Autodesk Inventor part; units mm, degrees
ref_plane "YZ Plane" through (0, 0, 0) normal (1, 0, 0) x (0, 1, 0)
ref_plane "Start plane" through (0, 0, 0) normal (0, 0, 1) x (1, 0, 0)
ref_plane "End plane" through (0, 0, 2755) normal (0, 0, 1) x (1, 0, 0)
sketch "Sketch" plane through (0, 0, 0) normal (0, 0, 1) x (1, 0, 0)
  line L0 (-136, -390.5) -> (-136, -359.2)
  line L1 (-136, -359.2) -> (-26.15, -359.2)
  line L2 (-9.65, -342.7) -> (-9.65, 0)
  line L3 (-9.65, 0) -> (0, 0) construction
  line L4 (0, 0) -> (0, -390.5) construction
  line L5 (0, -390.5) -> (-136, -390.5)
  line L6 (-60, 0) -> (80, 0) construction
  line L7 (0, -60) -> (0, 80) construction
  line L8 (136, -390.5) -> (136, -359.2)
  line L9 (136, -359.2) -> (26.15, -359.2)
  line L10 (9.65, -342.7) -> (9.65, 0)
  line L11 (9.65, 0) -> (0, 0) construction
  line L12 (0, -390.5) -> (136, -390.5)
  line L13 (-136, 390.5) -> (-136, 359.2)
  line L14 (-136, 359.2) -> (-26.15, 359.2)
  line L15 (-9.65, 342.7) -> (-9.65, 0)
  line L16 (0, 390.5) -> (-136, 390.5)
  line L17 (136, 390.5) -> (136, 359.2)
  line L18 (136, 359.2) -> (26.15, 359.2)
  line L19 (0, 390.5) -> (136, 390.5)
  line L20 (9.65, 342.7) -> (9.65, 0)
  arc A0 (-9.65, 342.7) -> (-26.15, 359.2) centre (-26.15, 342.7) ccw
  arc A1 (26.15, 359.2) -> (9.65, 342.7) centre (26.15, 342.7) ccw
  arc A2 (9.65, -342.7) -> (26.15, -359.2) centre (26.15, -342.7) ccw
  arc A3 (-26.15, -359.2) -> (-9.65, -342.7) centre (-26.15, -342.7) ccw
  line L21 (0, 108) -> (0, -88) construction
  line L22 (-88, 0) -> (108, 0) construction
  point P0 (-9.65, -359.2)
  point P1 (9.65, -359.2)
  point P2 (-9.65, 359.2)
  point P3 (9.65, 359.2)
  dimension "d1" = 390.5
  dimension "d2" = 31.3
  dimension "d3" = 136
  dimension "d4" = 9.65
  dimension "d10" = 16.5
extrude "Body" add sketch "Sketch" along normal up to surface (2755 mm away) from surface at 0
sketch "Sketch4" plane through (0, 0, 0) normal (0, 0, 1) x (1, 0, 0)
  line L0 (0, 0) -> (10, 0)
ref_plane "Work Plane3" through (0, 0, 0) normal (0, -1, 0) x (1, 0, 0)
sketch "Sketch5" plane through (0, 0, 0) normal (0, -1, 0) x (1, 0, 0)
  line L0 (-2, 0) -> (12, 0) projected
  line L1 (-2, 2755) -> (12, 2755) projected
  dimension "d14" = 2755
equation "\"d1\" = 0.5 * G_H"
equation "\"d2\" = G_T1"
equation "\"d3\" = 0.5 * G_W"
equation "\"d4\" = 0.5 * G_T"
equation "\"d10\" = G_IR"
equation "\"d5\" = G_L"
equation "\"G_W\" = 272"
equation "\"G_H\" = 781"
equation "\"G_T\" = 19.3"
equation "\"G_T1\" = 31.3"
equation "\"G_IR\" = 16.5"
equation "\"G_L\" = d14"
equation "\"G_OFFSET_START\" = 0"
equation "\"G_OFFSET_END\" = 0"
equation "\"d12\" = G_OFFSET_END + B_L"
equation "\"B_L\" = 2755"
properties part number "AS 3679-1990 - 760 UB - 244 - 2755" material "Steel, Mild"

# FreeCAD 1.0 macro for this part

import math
import FreeCAD as App
import Part
import Sketcher

doc = App.newDocument("Part")
params = doc.addObject("Spreadsheet::Sheet", "Params")
for row, (alias, value) in enumerate([
    ("sketch1_radius", "16.5 mm"),
    ("sketch1_height", "31.3 mm"),
    ("pad1_length", "2755 mm"),
], start=1):
    params.set(f"A{row}", alias)
    params.set(f"B{row}", "=" + value)
    params.setAlias(f"B{row}", alias)

body = doc.addObject("PartDesign::Body", "Body")

sketch1 = body.newObject("Sketcher::SketchObject", "Sketch")
sketch1.AttachmentSupport = (doc.getObject("XY_Plane"), [""])
sketch1.MapMode = "FlatFace"
sketch1.addGeometry([
    Part.LineSegment(App.Vector(-136, -359, 0), App.Vector(-136, -390, 0)),
    Part.LineSegment(App.Vector(-136, -390, 0), App.Vector(136, -390, 0)),
    Part.LineSegment(App.Vector(136, -390, 0), App.Vector(136, -359, 0)),
    Part.LineSegment(App.Vector(136, -359, 0), App.Vector(26, -359, 0)),
    Part.ArcOfCircle(Part.Circle(App.Vector(26, -343, 0), App.Vector(0, 0, 1), 16), math.radians(180), math.radians(270)),
    Part.LineSegment(App.Vector(10, -343, 0), App.Vector(10, 343, 0)),
    Part.ArcOfCircle(Part.Circle(App.Vector(26, 343, 0), App.Vector(0, 0, 1), 16), math.radians(90), math.radians(180)),
    Part.LineSegment(App.Vector(26, 359, 0), App.Vector(136, 359, 0)),
    Part.LineSegment(App.Vector(136, 359, 0), App.Vector(136, 390, 0)),
    Part.LineSegment(App.Vector(136, 390, 0), App.Vector(-136, 390, 0)),
    Part.LineSegment(App.Vector(-136, 390, 0), App.Vector(-136, 359, 0)),
    Part.LineSegment(App.Vector(-136, 359, 0), App.Vector(-26, 359, 0)),
    Part.ArcOfCircle(Part.Circle(App.Vector(-26, 343, 0), App.Vector(0, 0, 1), 16), math.radians(0), math.radians(90)),
    Part.LineSegment(App.Vector(-10, 343, 0), App.Vector(-10, -343, 0)),
    Part.ArcOfCircle(Part.Circle(App.Vector(-26, -343, 0), App.Vector(0, 0, 1), 16), math.radians(-90), math.radians(0)),
    Part.LineSegment(App.Vector(-26, -359, 0), App.Vector(-136, -359, 0)),
], False)
sketch1.addConstraint([
    Sketcher.Constraint("Coincident", 0, 2, 1, 1),
    Sketcher.Constraint("Coincident", 1, 2, 2, 1),
    Sketcher.Constraint("Coincident", 2, 2, 3, 1),
    Sketcher.Constraint("Tangent", 3, 2, 4, 2),
    Sketcher.Constraint("Tangent", 4, 1, 5, 1),
    Sketcher.Constraint("Tangent", 5, 2, 6, 2),
    Sketcher.Constraint("Tangent", 6, 1, 7, 1),
    Sketcher.Constraint("Coincident", 7, 2, 8, 1),
    Sketcher.Constraint("Coincident", 8, 2, 9, 1),
    Sketcher.Constraint("Coincident", 9, 2, 10, 1),
    Sketcher.Constraint("Coincident", 10, 2, 11, 1),
    Sketcher.Constraint("Tangent", 11, 2, 12, 2),
    Sketcher.Constraint("Tangent", 12, 1, 13, 1),
    Sketcher.Constraint("Tangent", 13, 2, 14, 2),
    Sketcher.Constraint("Tangent", 14, 1, 15, 1),
    Sketcher.Constraint("Coincident", 15, 2, 0, 1),
    Sketcher.Constraint("Vertical", 0),
    Sketcher.Constraint("Horizontal", 1),
    Sketcher.Constraint("Vertical", 2),
    Sketcher.Constraint("Horizontal", 3),
    Sketcher.Constraint("Vertical", 5),
    Sketcher.Constraint("Horizontal", 7),
    Sketcher.Constraint("Vertical", 8),
    Sketcher.Constraint("Horizontal", 9),
    Sketcher.Constraint("Vertical", 10),
    Sketcher.Constraint("Horizontal", 11),
    Sketcher.Constraint("Vertical", 13),
    Sketcher.Constraint("Horizontal", 15),
    Sketcher.Constraint("Equal", 4, 6),
    Sketcher.Constraint("Equal", 6, 12),
    Sketcher.Constraint("Equal", 12, 14),
    Sketcher.Constraint("Symmetric", 4, 3, 12, 3, -1, 1),
    Sketcher.Constraint("Symmetric", 0, 2, 8, 2, -1, 1),
    Sketcher.Constraint("Symmetric", 7, 2, 10, 2, -2),
    Sketcher.Constraint("Symmetric", 2, 2, 15, 2, -2),
    Sketcher.Constraint("Radius", 4, 16.5),
    Sketcher.Constraint("DistanceY", 0, 2, 0, 1, 31.3),
    Sketcher.Constraint("DistanceX", 0, 2, -1, 1, 136.0),
    Sketcher.Constraint("DistanceY", 0, 2, -1, 1, 390.5),
    Sketcher.Constraint("DistanceX", -1, 1, 4, 1, 9.65),
])
sketch1.setExpression("Constraints[35]", "Params.sketch1_radius")
sketch1.setExpression("Constraints[36]", "Params.sketch1_height")
pad1 = body.newObject("PartDesign::Pad", "Pad")
pad1.Profile = sketch1
pad1.setExpression("Length", "Params.pad1_length")

doc.recompute()
